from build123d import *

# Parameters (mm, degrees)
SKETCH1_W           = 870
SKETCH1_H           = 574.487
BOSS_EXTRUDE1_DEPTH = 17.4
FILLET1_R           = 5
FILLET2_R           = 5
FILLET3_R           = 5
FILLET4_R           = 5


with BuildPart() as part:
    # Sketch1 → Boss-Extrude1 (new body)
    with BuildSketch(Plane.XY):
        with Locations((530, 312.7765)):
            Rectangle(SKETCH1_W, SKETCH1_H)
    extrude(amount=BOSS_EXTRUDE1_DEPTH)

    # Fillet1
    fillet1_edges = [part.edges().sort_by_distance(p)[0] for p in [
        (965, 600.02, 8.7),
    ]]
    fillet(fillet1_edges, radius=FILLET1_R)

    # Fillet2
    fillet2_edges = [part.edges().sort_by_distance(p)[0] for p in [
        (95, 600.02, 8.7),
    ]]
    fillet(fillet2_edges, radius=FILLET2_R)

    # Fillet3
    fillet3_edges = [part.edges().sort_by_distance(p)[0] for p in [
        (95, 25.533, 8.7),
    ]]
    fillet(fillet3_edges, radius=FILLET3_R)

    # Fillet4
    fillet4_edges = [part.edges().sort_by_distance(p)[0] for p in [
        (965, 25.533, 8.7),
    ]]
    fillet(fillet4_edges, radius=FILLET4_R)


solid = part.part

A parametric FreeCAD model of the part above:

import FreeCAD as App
import Part
import Sketcher


def edges_at(feature, points):
    """Names of the edges that pass closest to the given points."""
    edges = feature.Shape.Edges
    near = lambda p: min(range(len(edges)), key=lambda i: edges[i].distToShape(Part.Vertex(*p))[0])
    return sorted({f"Edge{near(p) + 1}" for p in points})


def add_polygon(sketch, points):
    """Adds a closed chain of lines whose ends are joined by coincident constraints."""
    first, n = sketch.GeometryCount, len(points)
    for a, b in zip(points, points[1:] + points[:1]):
        sketch.addGeometry(Part.LineSegment(App.Vector(*a, 0), App.Vector(*b, 0)), False)
    for i in range(n):
        sketch.addConstraint(Sketcher.Constraint("Coincident", first + i, 2, first + (i + 1) % n, 1))

doc = App.newDocument("Part")
body = doc.addObject("PartDesign::Body", "Body")

# Sketch on XY plane
sketch1 = body.newObject("Sketcher::SketchObject", "Sketch")
sketch1.AttachmentSupport = (doc.getObject("XY_Plane"), [""])
sketch1.MapMode = "FlatFace"
add_polygon(sketch1, [(95, 600), (95, 26), (965, 26), (965, 600)])  # lines 0-3
sketch1.addConstraint([
    Sketcher.Constraint("Vertical", 0),
    Sketcher.Constraint("Horizontal", 1),
    Sketcher.Constraint("Vertical", 2),
    Sketcher.Constraint("Horizontal", 3),
    Sketcher.Constraint("DistanceX", 1, 1, 1, 2, 870.0),
    Sketcher.Constraint("DistanceX", -1, 1, 0, 2, 95.0),
    Sketcher.Constraint("DistanceY", 0, 2, 0, 1, 574.487),
    Sketcher.Constraint("DistanceY", -1, 1, 2, 2, 600.02),
])
pad1 = body.newObject("PartDesign::Pad", "Pad")
pad1.Profile = sketch1
pad1.Length = 17.4
doc.recompute()

fillet = body.newObject("PartDesign::Fillet", "Fillet")
fillet.Base = (pad1, edges_at(pad1, [(965, 600.02, 8.7)]))
fillet.Radius = 5
doc.recompute()

fillet2 = body.newObject("PartDesign::Fillet", "Fillet001")
fillet2.Base = (fillet, edges_at(fillet, [(95, 600.02, 8.7)]))
fillet2.Radius = 5
doc.recompute()

fillet3 = body.newObject("PartDesign::Fillet", "Fillet002")
fillet3.Base = (fillet2, edges_at(fillet2, [(95, 25.533, 8.7)]))
fillet3.Radius = 5
doc.recompute()

fillet4 = body.newObject("PartDesign::Fillet", "Fillet003")
fillet4.Base = (fillet3, edges_at(fillet3, [(965, 25.533, 8.7)]))
fillet4.Radius = 5

doc.recompute()
